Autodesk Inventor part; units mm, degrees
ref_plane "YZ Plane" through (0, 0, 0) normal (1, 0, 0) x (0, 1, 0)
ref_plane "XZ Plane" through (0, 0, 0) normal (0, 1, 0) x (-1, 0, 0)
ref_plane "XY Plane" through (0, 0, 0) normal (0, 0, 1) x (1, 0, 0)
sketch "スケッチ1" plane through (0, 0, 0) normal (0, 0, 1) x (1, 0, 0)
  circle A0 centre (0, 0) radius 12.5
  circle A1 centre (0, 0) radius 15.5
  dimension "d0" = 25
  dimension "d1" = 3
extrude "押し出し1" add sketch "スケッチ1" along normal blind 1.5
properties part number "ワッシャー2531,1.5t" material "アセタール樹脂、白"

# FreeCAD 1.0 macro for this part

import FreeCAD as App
import Part
import Sketcher

V = App.Vector
Q = App.Units.Quantity

doc = App.newDocument("Part")
params = doc.addObject("Spreadsheet::Sheet", "Params")
for row, (alias, value) in enumerate([
    ("sketch1_diameter", "25 mm"),
    ("sketch1_diameter2", "31 mm"),
    ("pad1_length", "1.5 mm"),
], start=1):
    params.set(f"A{row}", alias)
    params.set(f"B{row}", "=" + value)
    params.setAlias(f"B{row}", alias)

body = doc.addObject("PartDesign::Body", "Body")

# Sketch on XY plane
sketch1 = doc.addObject("Sketcher::SketchObject", "Sketch")
body.addObject(sketch1)
sketch1.AttachmentSupport = (doc.XY_Plane, [""])
sketch1.MapMode = "FlatFace"
sketch1.addGeometry([
    Part.Circle(V(0, 0, 0), V(0, 0, 1), 16),
    Part.Circle(V(0, 0, 0), V(0, 0, 1), 12),
], False)
sketch1.addConstraint([
    Sketcher.Constraint("Coincident", 0, 3, -1, 1),
    Sketcher.Constraint("Coincident", 1, 3, -1, 1),
    Sketcher.Constraint("Diameter", 1, Q("25 mm")),
    Sketcher.Constraint("Diameter", 0, Q("31 mm")),
])
sketch1.setExpression("Constraints[2]", "Params.sketch1_diameter")
sketch1.setExpression("Constraints[3]", "Params.sketch1_diameter2")
pad1 = doc.addObject("PartDesign::Pad", "Pad")
body.addObject(pad1)
pad1.Profile = sketch1
pad1.setExpression("Length", "Params.pad1_length")

doc.recompute()
